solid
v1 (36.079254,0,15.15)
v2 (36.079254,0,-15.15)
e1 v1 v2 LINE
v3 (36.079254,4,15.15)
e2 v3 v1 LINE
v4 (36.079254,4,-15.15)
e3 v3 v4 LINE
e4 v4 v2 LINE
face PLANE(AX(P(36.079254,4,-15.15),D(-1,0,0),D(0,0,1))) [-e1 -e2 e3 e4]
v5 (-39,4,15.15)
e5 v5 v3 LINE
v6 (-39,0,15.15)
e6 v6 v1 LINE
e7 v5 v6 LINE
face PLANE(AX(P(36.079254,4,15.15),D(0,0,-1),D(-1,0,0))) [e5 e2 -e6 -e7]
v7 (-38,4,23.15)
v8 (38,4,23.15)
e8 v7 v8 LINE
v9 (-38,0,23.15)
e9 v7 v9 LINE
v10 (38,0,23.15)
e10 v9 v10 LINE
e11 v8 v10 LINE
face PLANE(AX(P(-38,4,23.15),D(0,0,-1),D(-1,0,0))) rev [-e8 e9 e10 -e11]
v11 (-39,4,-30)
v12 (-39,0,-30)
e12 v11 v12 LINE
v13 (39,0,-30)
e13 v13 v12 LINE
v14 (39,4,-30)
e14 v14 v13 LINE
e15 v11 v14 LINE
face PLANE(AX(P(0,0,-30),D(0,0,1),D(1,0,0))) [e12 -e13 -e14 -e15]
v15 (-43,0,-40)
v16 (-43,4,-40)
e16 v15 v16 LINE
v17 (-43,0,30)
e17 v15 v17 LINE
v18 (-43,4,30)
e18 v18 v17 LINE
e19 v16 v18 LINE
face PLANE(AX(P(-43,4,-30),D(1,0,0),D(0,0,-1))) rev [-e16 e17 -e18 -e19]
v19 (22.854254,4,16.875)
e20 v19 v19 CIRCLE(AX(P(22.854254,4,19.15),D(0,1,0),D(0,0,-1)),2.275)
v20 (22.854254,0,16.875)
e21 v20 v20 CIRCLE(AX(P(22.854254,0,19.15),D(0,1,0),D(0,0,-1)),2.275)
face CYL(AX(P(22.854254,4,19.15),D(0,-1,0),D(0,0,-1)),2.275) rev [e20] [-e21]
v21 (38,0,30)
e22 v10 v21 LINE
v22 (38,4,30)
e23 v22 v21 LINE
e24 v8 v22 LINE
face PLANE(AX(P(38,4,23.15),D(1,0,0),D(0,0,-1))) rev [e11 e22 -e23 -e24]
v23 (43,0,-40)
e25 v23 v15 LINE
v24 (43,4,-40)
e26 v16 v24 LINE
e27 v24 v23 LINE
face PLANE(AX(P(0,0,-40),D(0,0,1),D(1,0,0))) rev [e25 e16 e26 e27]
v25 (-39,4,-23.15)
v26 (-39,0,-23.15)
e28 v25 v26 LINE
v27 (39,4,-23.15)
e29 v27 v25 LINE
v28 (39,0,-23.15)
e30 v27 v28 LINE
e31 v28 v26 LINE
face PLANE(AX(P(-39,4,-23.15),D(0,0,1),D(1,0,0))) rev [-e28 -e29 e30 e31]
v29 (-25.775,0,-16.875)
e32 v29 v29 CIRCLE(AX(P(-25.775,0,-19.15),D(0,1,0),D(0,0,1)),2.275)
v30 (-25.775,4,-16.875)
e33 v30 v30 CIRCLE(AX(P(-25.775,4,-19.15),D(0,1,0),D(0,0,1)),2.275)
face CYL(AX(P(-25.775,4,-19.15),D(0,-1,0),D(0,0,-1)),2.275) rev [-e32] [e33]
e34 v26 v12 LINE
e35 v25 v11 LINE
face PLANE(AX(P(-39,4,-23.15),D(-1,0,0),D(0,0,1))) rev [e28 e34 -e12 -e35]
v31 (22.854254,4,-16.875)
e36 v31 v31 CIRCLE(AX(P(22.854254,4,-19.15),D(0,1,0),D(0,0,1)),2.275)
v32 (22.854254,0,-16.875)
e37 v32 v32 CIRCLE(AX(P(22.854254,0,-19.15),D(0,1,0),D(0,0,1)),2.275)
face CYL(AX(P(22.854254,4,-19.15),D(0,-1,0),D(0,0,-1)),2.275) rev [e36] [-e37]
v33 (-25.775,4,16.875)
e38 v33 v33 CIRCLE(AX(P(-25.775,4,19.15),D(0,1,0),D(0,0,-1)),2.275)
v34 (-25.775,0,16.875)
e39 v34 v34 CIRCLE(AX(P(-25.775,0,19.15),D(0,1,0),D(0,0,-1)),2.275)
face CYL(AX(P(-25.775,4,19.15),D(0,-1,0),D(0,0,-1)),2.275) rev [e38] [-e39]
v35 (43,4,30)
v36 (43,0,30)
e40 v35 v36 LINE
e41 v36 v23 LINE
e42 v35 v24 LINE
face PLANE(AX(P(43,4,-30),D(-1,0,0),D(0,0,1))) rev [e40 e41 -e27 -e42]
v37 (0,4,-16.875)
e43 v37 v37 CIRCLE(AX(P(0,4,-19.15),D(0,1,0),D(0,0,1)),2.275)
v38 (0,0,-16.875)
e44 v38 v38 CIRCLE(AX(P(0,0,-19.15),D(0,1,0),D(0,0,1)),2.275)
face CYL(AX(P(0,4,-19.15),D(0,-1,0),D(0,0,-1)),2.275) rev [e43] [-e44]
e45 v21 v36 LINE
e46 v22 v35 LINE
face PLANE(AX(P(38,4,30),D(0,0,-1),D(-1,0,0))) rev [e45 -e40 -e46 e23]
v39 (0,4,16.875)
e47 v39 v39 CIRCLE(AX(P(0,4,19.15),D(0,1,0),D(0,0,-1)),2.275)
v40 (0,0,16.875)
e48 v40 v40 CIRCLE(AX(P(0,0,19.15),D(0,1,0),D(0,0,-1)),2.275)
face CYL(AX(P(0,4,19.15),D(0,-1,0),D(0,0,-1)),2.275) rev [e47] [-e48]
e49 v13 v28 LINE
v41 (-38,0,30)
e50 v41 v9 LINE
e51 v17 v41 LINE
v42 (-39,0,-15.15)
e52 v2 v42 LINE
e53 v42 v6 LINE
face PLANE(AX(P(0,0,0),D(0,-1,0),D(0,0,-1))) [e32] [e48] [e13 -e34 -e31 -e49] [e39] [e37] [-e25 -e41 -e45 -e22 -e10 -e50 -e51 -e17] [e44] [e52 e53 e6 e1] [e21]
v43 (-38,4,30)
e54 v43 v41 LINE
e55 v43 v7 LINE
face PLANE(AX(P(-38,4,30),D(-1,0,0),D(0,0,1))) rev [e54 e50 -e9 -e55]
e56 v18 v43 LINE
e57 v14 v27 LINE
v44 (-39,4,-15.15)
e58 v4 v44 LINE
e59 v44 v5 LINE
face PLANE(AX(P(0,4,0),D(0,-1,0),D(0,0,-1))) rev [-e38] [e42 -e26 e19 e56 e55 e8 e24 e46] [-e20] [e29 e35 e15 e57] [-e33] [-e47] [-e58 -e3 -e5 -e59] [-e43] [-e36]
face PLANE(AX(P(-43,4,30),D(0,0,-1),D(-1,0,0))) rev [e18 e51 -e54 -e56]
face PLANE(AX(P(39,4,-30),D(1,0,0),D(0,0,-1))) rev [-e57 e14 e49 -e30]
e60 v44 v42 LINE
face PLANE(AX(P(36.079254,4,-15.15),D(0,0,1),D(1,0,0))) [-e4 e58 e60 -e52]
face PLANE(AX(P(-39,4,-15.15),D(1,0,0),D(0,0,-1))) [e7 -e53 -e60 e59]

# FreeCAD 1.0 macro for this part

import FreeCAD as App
import Part
import Sketcher

V = App.Vector

doc = App.newDocument("Part")
body = doc.addObject("PartDesign::Body", "Body")

sketch1 = body.newObject("Sketcher::SketchObject", "Sketch")
sketch1.AttachmentSupport = (doc.getObject("XZ_Plane"), [""])
sketch1.MapMode = "FlatFace"
sketch1.addGeometry([
    Part.LineSegment(V(43, -30, 0), V(39, -30, 0)),
    Part.LineSegment(V(39, -30, 0), V(39, -23.1, 0)),
    Part.LineSegment(V(39, -23.1, 0), V(-39, -23.1, 0)),
    Part.LineSegment(V(-39, -23.1, 0), V(-39, -30, 0)),
    Part.LineSegment(V(-39, -30, 0), V(-43, -30, 0)),
    Part.LineSegment(V(-43, -30, 0), V(-43, 30, 0)),
    Part.LineSegment(V(-43, 30, 0), V(-38, 30, 0)),
    Part.LineSegment(V(-38, 30, 0), V(-38, 23.1, 0)),
    Part.LineSegment(V(-38, 23.1, 0), V(38, 23.1, 0)),
    Part.LineSegment(V(38, 23.1, 0), V(38, 30, 0)),
    Part.LineSegment(V(38, 30, 0), V(43, 30, 0)),
    Part.LineSegment(V(43, 30, 0), V(43, -30, 0)),
    Part.Circle(V(-25.8, 19.1, 0), V(0, 0, 1), 2.3),
    Part.Circle(V(0, 19.1, 0), V(0, 0, 1), 2.3),
    Part.Circle(V(22.9, 19.1, 0), V(0, 0, 1), 2.3),
    Part.Circle(V(-25.8, -19.1, 0), V(0, 0, 1), 2.3),
    Part.LineSegment(V(36.1, 15.2, 0), V(-39, 15.2, 0)),
    Part.LineSegment(V(-39, 15.2, 0), V(-39, -15.2, 0)),
    Part.LineSegment(V(-39, -15.2, 0), V(36.1, -15.2, 0)),
    Part.LineSegment(V(36.1, -15.2, 0), V(36.1, 15.2, 0)),
    Part.Circle(V(0, -19.1, 0), V(0, 0, 1), 2.3),
    Part.Circle(V(22.9, -19.1, 0), V(0, 0, 1), 2.3),
], False)
sketch1.addConstraint([
    Sketcher.Constraint("Coincident", 0, 2, 1, 1),
    Sketcher.Constraint("Coincident", 1, 2, 2, 1),
    Sketcher.Constraint("Coincident", 2, 2, 3, 1),
    Sketcher.Constraint("Coincident", 3, 2, 4, 1),
    Sketcher.Constraint("Coincident", 4, 2, 5, 1),
    Sketcher.Constraint("Coincident", 5, 2, 6, 1),
    Sketcher.Constraint("Coincident", 6, 2, 7, 1),
    Sketcher.Constraint("Coincident", 7, 2, 8, 1),
    Sketcher.Constraint("Coincident", 8, 2, 9, 1),
    Sketcher.Constraint("Coincident", 9, 2, 10, 1),
    Sketcher.Constraint("Coincident", 10, 2, 11, 1),
    Sketcher.Constraint("Coincident", 11, 2, 0, 1),
    Sketcher.Constraint("Coincident", 16, 2, 17, 1),
    Sketcher.Constraint("Coincident", 17, 2, 18, 1),
    Sketcher.Constraint("Coincident", 18, 2, 19, 1),
    Sketcher.Constraint("Coincident", 19, 2, 16, 1),
    Sketcher.Constraint("Horizontal", 0),
    Sketcher.Constraint("Vertical", 1),
    Sketcher.Constraint("Horizontal", 2),
    Sketcher.Constraint("Vertical", 3),
    Sketcher.Constraint("Horizontal", 4),
    Sketcher.Constraint("Vertical", 5),
    Sketcher.Constraint("Horizontal", 6),
    Sketcher.Constraint("Vertical", 7),
    Sketcher.Constraint("Horizontal", 8),
    Sketcher.Constraint("Vertical", 9),
    Sketcher.Constraint("Horizontal", 10),
    Sketcher.Constraint("Vertical", 11),
    Sketcher.Constraint("Horizontal", 16),
    Sketcher.Constraint("Vertical", 17),
    Sketcher.Constraint("Horizontal", 18),
    Sketcher.Constraint("Vertical", 19),
    Sketcher.Constraint("Equal", 12, 13),
    Sketcher.Constraint("Equal", 13, 14),
    Sketcher.Constraint("Equal", 14, 15),
    Sketcher.Constraint("Equal", 15, 20),
    Sketcher.Constraint("Equal", 20, 21),
    Sketcher.Constraint("Symmetric", 13, 3, 20, 3, -1, 1),
    Sketcher.Constraint("Symmetric", 4, 2, 10, 2, -1, 1),
    Sketcher.Constraint("Symmetric", 0, 2, 3, 2, -2),
    Sketcher.Constraint("Symmetric", 6, 2, 9, 2, -2),
    Sketcher.Constraint("Symmetric", 12, 3, 15, 3, -1),
    Sketcher.Constraint("Symmetric", 14, 3, 21, 3, -1),
    Sketcher.Constraint("PointOnObject", 13, 3, -2),
    Sketcher.Constraint("Horizontal", 12, 3, 13, 3),
    Sketcher.Constraint("Horizontal", 13, 3, 14, 3),
    Sketcher.Constraint("Vertical", 3, 2, 16, 2),
    Sketcher.Constraint("Equal", 3, 7),
    Sketcher.Constraint("Diameter", 12, 4.55),
    Sketcher.Constraint("DistanceX", 0, 2, 0, 1, 4.0),
    Sketcher.Constraint("DistanceX", 2, 2, 2, 1, 78.0),
    Sketcher.Constraint("DistanceX", 6, 1, 6, 2, 5.0),
    Sketcher.Constraint("DistanceY", 5, 1, 5, 2, 60.0),
    Sketcher.Constraint("DistanceY", 17, 2, 17, 1, 30.3),
    Sketcher.Constraint("DistanceY", 1, 2, 21, 3, 4.0),
    Sketcher.Constraint("DistanceY", 16, 2, 7, 2, 8.0),
    Sketcher.Constraint("DistanceY", 2, 2, 17, 2, 8.0),
    Sketcher.Constraint("DistanceX", 12, 3, -1, 1, 25.775),
    Sketcher.Constraint("DistanceX", 21, 3, 18, 2, 13.225),
    Sketcher.Constraint("DistanceX", 16, 2, 16, 1, 75.079254),
])
pad1 = body.newObject("PartDesign::Pad", "Pad")
pad1.Profile = sketch1
pad1.Length = 4
pad1.Reversed = True

sketch2 = body.newObject("Sketcher::SketchObject", "Sketch001")
sketch2.AttachmentSupport = (doc.getObject("XY_Plane"), [""])
sketch2.MapMode = "FlatFace"
sketch2.AttachmentOffset = App.Placement(V(0, 0, -30), App.Rotation())
sketch2.addGeometry([
    Part.LineSegment(V(43, 4, 0), V(43, 0, 0)),
    Part.LineSegment(V(43, 0, 0), V(-43, 0, 0)),
    Part.LineSegment(V(-43, 0, 0), V(-43, 4, 0)),
    Part.LineSegment(V(-43, 4, 0), V(43, 4, 0)),
], False)
sketch2.addConstraint([
    Sketcher.Constraint("Coincident", 0, 2, 1, 1),
    Sketcher.Constraint("Coincident", 1, 2, 2, 1),
    Sketcher.Constraint("Coincident", 2, 2, 3, 1),
    Sketcher.Constraint("Coincident", 3, 2, 0, 1),
    Sketcher.Constraint("Vertical", 0),
    Sketcher.Constraint("Horizontal", 1),
    Sketcher.Constraint("Vertical", 2),
    Sketcher.Constraint("Horizontal", 3),
    Sketcher.Constraint("Symmetric", 0, 2, 1, 2, -1, 1),
    Sketcher.Constraint("DistanceX", 1, 2, 1, 1, 86.0),
    Sketcher.Constraint("DistanceY", 0, 2, 0, 1, 4.0),
])
pad2 = body.newObject("PartDesign::Pad", "Pad001")
pad2.Profile = sketch2
pad2.Length = 10
pad2.Reversed = True

doc.recompute()
